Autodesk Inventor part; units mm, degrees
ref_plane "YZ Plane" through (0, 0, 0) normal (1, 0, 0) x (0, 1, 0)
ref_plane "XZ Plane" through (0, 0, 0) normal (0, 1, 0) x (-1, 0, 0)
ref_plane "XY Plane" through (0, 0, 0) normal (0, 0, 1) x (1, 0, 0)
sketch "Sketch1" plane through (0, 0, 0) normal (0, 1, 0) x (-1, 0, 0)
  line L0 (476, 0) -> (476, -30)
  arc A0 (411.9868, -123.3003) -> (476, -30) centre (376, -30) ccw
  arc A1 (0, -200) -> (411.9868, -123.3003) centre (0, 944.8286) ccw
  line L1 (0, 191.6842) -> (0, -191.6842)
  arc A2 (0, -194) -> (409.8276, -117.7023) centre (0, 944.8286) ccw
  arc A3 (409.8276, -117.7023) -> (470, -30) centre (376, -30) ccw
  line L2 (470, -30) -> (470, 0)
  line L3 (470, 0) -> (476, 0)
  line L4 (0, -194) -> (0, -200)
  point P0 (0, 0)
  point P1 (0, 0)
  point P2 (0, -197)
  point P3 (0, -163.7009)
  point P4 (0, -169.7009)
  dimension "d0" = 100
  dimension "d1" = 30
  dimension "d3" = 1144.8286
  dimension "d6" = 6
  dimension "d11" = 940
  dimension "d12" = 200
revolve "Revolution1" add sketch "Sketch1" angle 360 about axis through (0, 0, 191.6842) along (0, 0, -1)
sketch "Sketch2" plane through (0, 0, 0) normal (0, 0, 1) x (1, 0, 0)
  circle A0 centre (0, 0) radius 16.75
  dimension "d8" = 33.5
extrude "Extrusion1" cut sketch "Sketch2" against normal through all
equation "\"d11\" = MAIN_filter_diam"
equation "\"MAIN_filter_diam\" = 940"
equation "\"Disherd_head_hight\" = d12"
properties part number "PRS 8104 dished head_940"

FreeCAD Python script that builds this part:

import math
import FreeCAD as App
import Part
import Sketcher
from FreeCAD import Vector
Q = App.Units.Quantity

doc = App.newDocument("Part")
body = doc.addObject("PartDesign::Body", "Body")

sketch1 = body.newObject("Sketcher::SketchObject", "Sketch")
sketch1.AttachmentSupport = (doc.getObject("XZ_Plane"), [""])
sketch1.MapMode = "FlatFace"
sketch1.addGeometry(Part.LineSegment(Vector(-476, -30, 0), Vector(-476, 0, 0)), False)
sketch1.addGeometry(Part.LineSegment(Vector(-476, 0, 0), Vector(-470, 0, 0)), False)
sketch1.addGeometry(Part.LineSegment(Vector(-470, 0, 0), Vector(-470, -30, 0)), False)
sketch1.addGeometry(Part.ArcOfCircle(Part.Circle(Vector(-376, -30, 0), Vector(0, 0, 1), 94), math.radians(180), math.radians(248.907905)), False)
sketch1.addGeometry(Part.ArcOfCircle(Part.Circle(Vector(0, 944.8286, 0), Vector(0, 0, 1), 1138.8286), math.radians(-111.09207), math.radians(-90)), False)
sketch1.addGeometry(Part.LineSegment(Vector(0, -194, 0), Vector(0, -200, 0)), False)
sketch1.addGeometry(Part.ArcOfCircle(Part.Circle(Vector(0, 944.8286, 0), Vector(0, 0, 1), 1144.8286), math.radians(-111.09207), math.radians(-90)), False)
sketch1.addGeometry(Part.ArcOfCircle(Part.Circle(Vector(-376, -30, 0), Vector(0, 0, 1), 99.999979), math.radians(180), math.radians(248.907906)), False)
sketch1.addConstraint(Sketcher.Constraint("Coincident", 0, 2, 1, 1))
sketch1.addConstraint(Sketcher.Constraint("Coincident", 1, 2, 2, 1))
sketch1.addConstraint(Sketcher.Constraint("Tangent", 2, 2, 3, 1))
sketch1.addConstraint(Sketcher.Constraint("Tangent", 3, 2, 4, 1))
sketch1.addConstraint(Sketcher.Constraint("Coincident", 4, 2, 5, 1))
sketch1.addConstraint(Sketcher.Constraint("Coincident", 5, 2, 6, 2))
sketch1.addConstraint(Sketcher.Constraint("Tangent", 6, 1, 7, 2))
sketch1.addConstraint(Sketcher.Constraint("Tangent", 7, 1, 0, 1))
sketch1.addConstraint(Sketcher.Constraint("Vertical", 0))
sketch1.addConstraint(Sketcher.Constraint("Horizontal", 1))
sketch1.addConstraint(Sketcher.Constraint("Vertical", 2))
sketch1.addConstraint(Sketcher.Constraint("Vertical", 5))
sketch1.addConstraint(Sketcher.Constraint("Coincident", 6, 3, 4, 3))
sketch1.addConstraint(Sketcher.Constraint("Coincident", 7, 3, 3, 3))
sketch1.addConstraint(Sketcher.Constraint("PointOnObject", 4, 3, -2))
sketch1.addConstraint(Sketcher.Constraint("PointOnObject", 0, 2, -1))
sketch1.addConstraint(Sketcher.Constraint("PointOnObject", 5, 2, -2))
sketch1.addConstraint(Sketcher.Constraint("Radius", 7, Q("100 mm")))
sketch1.addConstraint(Sketcher.Constraint("DistanceX", 1, 1, 1, 2, Q("6 mm")))
sketch1.addConstraint(Sketcher.Constraint("DistanceY", 0, 1, 0, 2, Q("30 mm")))
sketch1.addConstraint(Sketcher.Constraint("DistanceY", 5, 2, -1, 1, Q("200 mm")))
sketch1.addConstraint(Sketcher.Constraint("Radius", 6, Q("1144.8286 mm")))
revolution = body.newObject("PartDesign::Revolution", "Revolution")
revolution.Profile = sketch1
revolution.ReferenceAxis = (sketch1, ["V_Axis"])
revolution.Angle = 360

sketch2 = body.newObject("Sketcher::SketchObject", "Sketch001")
sketch2.AttachmentSupport = (doc.getObject("XY_Plane"), [""])
sketch2.MapMode = "FlatFace"
sketch2.addGeometry(Part.Circle(Vector(0, 0, 0), Vector(0, 0, 1), 16.75), False)
sketch2.addConstraint(Sketcher.Constraint("Coincident", 0, 3, -1, 1))
sketch2.addConstraint(Sketcher.Constraint("Diameter", 0, Q("33.5 mm")))
pocket1 = body.newObject("PartDesign::Pocket", "Pocket")
pocket1.Profile = sketch2
pocket1.Type = "ThroughAll"

doc.recompute()
